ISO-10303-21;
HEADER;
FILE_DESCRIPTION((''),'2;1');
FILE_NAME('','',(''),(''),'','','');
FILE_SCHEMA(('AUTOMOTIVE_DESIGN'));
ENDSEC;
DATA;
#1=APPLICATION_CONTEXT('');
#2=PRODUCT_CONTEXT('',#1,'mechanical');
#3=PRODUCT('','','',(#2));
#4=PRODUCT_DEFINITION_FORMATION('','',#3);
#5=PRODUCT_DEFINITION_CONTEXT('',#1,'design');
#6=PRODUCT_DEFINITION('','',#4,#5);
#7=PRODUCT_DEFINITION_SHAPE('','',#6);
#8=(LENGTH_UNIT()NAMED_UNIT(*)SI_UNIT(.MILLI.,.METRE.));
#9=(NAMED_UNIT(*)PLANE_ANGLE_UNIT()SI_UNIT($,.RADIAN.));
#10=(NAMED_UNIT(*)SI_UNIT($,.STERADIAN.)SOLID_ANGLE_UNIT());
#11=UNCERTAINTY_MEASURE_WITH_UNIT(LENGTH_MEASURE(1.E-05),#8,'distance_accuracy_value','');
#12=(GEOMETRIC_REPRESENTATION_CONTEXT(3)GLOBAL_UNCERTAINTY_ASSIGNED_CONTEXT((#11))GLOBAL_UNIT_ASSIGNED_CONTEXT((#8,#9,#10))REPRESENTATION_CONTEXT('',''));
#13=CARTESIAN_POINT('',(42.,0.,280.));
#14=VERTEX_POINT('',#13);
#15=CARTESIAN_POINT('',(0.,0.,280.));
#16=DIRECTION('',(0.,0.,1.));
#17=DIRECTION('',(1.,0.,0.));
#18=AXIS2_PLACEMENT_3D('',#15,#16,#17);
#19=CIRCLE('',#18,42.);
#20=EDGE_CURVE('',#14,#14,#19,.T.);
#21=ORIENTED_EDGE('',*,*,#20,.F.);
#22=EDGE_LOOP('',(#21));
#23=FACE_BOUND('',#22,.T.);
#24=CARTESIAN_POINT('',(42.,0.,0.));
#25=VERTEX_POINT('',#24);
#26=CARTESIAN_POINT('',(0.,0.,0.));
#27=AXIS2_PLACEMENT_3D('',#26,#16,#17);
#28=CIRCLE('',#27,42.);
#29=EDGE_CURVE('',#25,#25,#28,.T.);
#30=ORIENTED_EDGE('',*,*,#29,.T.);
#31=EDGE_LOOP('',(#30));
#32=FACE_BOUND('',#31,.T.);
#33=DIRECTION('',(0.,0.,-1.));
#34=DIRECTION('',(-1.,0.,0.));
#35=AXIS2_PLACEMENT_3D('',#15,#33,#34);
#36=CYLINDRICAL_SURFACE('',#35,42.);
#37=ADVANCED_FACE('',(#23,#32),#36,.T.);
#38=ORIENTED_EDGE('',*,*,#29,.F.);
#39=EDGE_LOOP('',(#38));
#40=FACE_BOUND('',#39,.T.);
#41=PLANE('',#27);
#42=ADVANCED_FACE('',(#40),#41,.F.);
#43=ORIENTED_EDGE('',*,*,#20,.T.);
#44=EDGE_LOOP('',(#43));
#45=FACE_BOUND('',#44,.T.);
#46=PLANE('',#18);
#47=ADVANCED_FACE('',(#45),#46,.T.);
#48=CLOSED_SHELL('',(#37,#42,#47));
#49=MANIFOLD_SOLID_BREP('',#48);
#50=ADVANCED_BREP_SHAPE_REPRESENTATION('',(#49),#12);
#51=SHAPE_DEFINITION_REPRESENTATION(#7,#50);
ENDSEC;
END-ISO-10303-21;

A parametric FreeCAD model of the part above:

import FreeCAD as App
import Part
import Sketcher
from FreeCAD import Vector

doc = App.newDocument("Part")
body = doc.addObject("PartDesign::Body", "Body")

sketch1 = body.newObject("Sketcher::SketchObject", "Sketch")
sketch1.AttachmentSupport = (doc.getObject("XY_Plane"), [""])
sketch1.MapMode = "FlatFace"
sketch1.addGeometry(Part.Circle(Vector(0, 0, 0), Vector(0, 0, 1), 42), False)
sketch1.addConstraint([
    Sketcher.Constraint("Coincident", 0, 3, -1, 1),
    Sketcher.Constraint("Diameter", 0, 84.0),
])
pad1 = body.newObject("PartDesign::Pad", "Pad")
pad1.Profile = sketch1
pad1.Length = 280

doc.recompute()
